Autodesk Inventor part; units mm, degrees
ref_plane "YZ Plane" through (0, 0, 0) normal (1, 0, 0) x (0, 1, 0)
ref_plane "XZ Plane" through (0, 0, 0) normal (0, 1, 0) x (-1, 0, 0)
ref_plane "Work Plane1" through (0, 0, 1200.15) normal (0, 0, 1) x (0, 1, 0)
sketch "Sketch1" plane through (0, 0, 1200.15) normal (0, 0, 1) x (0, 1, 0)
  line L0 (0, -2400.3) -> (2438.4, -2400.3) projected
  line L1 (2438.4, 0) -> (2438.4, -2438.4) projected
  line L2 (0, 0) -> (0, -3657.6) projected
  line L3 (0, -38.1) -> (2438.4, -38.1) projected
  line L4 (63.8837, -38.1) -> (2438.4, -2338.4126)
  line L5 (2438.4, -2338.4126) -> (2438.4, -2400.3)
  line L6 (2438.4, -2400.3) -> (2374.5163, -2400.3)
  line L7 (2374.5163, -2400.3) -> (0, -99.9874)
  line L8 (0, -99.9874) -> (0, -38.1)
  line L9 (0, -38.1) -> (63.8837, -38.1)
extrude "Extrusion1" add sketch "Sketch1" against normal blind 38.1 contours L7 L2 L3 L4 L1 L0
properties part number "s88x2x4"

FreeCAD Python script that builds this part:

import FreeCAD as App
import Part
import Sketcher
from FreeCAD import Vector
Q = App.Units.Quantity

doc = App.newDocument("Part")
body = doc.addObject("PartDesign::Body", "Body")

# Sketch on XY plane
sketch1 = body.newObject("Sketcher::SketchObject", "Sketch")
sketch1.AttachmentSupport = (doc.getObject("XY_Plane"), [""])
sketch1.MapMode = "FlatFace"
sketch1.AttachmentOffset = App.Placement(Vector(0, 0, 47.25 * 25.4), App.Rotation())
sketch1.addGeometry([
    Part.LineSegment(Vector(100, 0, 0), Vector(2400, 2375, 0)),  # 0
    Part.LineSegment(Vector(2400, 2375, 0), Vector(2400, 2438, 0)),  # 1
    Part.LineSegment(Vector(2400, 2438, 0), Vector(2338, 2438, 0)),  # 2
    Part.LineSegment(Vector(2338, 2438, 0), Vector(38, 64, 0)),  # 3
    Part.LineSegment(Vector(38, 64, 0), Vector(38, 0, 0)),  # 4
    Part.LineSegment(Vector(38, 0, 0), Vector(100, 0, 0)),  # 5
], False)
sketch1.addConstraint([
    Sketcher.Constraint("Coincident", 0, 2, 1, 1),
    Sketcher.Constraint("Coincident", 1, 2, 2, 1),
    Sketcher.Constraint("Coincident", 2, 2, 3, 1),
    Sketcher.Constraint("Coincident", 3, 2, 4, 1),
    Sketcher.Constraint("Coincident", 4, 2, 5, 1),
    Sketcher.Constraint("Coincident", 5, 2, 0, 1),
    Sketcher.Constraint("Vertical", 1),
    Sketcher.Constraint("Horizontal", 2),
    Sketcher.Constraint("Vertical", 4),
    Sketcher.Constraint("Horizontal", 5),
    Sketcher.Constraint("PointOnObject", 4, 2, -1),
    Sketcher.Constraint("Parallel", 0, 3),
    Sketcher.Constraint("Equal", 2, 5),
    Sketcher.Constraint("DistanceY", -1, 1, 1, 2, Q("96 in")),
    Sketcher.Constraint("DistanceX", 3, 2, 0, 2, Q("93 in")),
    Sketcher.Constraint("DistanceX", -1, 1, 0, 2, Q("94.5 in")),
    Sketcher.Constraint("Angle", 0, Q("45.9094 deg")),
    Sketcher.Constraint("DistanceX", 2, 2, 2, 1, Q("2.4365 in")),
])
pad1 = body.newObject("PartDesign::Pad", "Pad")
pad1.Profile = sketch1
pad1.Length = Q("1.5 in")
pad1.Reversed = True

doc.recompute()
